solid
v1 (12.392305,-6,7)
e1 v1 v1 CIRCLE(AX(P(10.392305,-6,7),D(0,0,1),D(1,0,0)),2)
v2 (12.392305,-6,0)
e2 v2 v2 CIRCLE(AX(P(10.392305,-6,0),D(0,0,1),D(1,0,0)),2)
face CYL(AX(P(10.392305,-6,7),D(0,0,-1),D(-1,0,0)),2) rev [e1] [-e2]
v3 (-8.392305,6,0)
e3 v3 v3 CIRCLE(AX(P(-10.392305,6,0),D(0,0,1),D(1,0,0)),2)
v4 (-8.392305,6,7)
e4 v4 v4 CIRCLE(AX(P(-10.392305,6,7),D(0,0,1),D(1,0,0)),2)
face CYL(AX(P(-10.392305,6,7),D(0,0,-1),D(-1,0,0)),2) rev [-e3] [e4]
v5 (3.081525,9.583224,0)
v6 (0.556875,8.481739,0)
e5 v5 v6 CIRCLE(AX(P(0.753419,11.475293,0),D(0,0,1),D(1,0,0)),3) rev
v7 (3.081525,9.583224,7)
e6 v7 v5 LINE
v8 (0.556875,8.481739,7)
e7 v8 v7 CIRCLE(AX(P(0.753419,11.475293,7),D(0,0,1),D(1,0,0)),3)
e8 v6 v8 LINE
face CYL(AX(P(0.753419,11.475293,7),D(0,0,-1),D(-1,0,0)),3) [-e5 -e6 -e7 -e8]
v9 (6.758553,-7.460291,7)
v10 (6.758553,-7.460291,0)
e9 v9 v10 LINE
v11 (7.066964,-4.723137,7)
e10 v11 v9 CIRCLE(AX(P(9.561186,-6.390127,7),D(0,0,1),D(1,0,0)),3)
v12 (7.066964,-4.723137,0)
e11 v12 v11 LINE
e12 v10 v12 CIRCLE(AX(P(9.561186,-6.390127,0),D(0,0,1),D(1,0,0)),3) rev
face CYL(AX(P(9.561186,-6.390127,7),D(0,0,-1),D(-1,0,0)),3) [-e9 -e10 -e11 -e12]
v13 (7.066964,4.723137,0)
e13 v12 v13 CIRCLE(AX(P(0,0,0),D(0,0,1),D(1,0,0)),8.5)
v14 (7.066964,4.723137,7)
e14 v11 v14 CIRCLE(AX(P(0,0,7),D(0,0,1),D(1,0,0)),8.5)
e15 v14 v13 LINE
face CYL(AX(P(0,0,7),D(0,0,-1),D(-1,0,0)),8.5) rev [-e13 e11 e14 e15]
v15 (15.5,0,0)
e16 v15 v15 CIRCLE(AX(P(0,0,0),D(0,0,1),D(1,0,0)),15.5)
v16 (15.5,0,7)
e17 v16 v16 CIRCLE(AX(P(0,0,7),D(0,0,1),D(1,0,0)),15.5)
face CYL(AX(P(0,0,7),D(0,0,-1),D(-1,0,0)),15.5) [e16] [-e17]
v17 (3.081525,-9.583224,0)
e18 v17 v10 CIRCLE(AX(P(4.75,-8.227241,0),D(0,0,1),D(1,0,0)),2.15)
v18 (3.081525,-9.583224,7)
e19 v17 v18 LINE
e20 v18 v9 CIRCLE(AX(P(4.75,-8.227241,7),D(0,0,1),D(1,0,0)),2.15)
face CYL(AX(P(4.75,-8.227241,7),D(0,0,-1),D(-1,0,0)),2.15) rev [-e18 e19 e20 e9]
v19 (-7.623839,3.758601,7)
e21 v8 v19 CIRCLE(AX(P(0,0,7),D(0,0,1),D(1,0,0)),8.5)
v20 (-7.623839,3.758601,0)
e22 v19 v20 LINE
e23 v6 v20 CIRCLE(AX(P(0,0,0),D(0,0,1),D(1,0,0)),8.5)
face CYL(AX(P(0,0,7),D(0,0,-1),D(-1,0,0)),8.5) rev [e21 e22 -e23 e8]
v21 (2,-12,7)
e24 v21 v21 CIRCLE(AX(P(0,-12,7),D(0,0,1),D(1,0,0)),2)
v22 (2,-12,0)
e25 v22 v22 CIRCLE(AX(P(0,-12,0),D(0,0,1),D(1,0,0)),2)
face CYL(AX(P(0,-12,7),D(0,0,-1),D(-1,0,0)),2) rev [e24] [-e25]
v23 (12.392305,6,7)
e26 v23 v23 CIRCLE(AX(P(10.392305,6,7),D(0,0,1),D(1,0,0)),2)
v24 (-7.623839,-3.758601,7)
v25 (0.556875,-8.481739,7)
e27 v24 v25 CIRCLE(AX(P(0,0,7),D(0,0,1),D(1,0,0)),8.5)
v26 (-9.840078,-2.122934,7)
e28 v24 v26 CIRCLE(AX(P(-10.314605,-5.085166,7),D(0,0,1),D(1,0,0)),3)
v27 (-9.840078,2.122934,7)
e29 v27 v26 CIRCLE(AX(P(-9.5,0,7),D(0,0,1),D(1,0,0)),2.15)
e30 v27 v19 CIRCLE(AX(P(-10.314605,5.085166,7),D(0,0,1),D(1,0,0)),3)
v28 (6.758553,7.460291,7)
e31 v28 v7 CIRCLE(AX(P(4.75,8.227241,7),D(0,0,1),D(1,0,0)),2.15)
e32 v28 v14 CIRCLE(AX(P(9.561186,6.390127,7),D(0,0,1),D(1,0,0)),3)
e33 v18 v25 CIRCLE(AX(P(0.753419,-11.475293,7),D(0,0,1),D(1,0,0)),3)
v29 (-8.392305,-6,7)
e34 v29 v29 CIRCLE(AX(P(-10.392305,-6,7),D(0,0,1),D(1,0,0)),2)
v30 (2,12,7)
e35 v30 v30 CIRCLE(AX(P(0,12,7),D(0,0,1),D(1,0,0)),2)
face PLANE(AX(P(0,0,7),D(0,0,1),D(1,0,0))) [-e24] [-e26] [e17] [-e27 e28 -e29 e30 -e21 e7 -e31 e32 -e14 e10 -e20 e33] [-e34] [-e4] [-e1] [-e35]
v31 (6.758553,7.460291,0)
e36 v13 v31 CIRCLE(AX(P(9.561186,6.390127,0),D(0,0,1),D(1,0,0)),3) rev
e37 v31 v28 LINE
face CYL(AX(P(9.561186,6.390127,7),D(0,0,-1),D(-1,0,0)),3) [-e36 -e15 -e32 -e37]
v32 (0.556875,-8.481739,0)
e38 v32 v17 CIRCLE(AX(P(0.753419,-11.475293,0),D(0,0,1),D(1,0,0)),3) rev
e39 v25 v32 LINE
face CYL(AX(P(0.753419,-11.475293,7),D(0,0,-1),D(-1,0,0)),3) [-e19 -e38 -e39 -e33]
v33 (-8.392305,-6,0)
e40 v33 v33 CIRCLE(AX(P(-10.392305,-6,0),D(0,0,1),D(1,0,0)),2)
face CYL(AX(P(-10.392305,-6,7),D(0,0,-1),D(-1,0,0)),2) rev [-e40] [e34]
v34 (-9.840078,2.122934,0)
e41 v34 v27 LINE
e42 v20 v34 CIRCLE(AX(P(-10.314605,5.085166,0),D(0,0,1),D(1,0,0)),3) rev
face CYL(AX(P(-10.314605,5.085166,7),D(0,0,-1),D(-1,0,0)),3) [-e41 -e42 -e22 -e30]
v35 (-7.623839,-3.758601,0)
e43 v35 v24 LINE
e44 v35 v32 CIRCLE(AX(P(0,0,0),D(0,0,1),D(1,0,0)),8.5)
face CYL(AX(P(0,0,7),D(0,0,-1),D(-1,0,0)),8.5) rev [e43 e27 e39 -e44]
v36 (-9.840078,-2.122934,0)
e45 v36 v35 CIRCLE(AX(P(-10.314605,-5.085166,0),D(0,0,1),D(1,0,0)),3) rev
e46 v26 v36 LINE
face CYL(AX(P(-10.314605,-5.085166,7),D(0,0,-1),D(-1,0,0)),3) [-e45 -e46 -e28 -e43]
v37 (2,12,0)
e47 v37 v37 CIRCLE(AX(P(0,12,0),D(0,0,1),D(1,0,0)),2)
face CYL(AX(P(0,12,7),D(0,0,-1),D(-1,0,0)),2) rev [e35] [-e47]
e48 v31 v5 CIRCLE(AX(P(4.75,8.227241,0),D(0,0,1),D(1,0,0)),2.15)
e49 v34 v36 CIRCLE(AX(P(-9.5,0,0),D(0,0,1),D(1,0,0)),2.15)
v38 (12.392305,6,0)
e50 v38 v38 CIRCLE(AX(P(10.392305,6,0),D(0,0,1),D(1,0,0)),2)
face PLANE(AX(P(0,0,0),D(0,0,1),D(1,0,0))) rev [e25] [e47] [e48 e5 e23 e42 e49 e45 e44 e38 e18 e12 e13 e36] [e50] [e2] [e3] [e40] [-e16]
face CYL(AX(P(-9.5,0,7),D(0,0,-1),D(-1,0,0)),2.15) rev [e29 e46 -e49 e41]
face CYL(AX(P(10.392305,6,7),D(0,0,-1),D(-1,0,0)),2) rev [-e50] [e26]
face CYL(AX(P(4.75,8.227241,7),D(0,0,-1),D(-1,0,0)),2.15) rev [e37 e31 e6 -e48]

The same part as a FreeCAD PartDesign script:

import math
import FreeCAD as App
import Part
import Sketcher


def edges_at(feature, points):
    """Names of the edges that pass closest to the given points."""
    edges = feature.Shape.Edges
    near = lambda p: min(range(len(edges)), key=lambda i: edges[i].distToShape(Part.Vertex(*p))[0])
    return sorted({f"Edge{near(p) + 1}" for p in points})

doc = App.newDocument("Part")
params = doc.addObject("Spreadsheet::Sheet", "Params")
for row, (alias, value) in enumerate([
    ("sketch1_diameter", "31 mm"),
    ("sketch1_diameter2", "4 mm"),
    ("sketch1_radius", "8.5 mm"),
    ("sketch1_radius2", "2.15 mm"),
    ("pad1_length", "7 mm"),
    ("fillet_radius", "3 mm"),
], start=1):
    params.set(f"A{row}", alias)
    params.set(f"B{row}", "=" + value)
    params.setAlias(f"B{row}", alias)

body = doc.addObject("PartDesign::Body", "Body")

# Sketch on XY plane
sketch1 = body.newObject("Sketcher::SketchObject", "Sketch")
sketch1.AttachmentSupport = (doc.getObject("XY_Plane"), [""])
sketch1.MapMode = "FlatFace"
sketch1.addGeometry(Part.Circle(App.Vector(0, 0, 0), App.Vector(0, 0, 1), 15.5), False)
sketch1.addGeometry(Part.Circle(App.Vector(0, -12, 0), App.Vector(0, 0, 1), 2), False)
sketch1.addGeometry(Part.Circle(App.Vector(-10.392305, -6, 0), App.Vector(0, 0, 1), 2), False)
sketch1.addGeometry(Part.Circle(App.Vector(10.392305, -6, 0), App.Vector(0, 0, 1), 2), False)
sketch1.addGeometry(Part.Circle(App.Vector(-10.392305, 6, 0), App.Vector(0, 0, 1), 2), False)
sketch1.addGeometry(Part.ArcOfCircle(Part.Circle(App.Vector(0, 0, 0), App.Vector(0, 0, 1), 8.5), math.radians(72.15824), math.radians(167.84176)), False)
sketch1.addGeometry(Part.ArcOfCircle(Part.Circle(App.Vector(4.75, 8.227241, 0), App.Vector(0, 0, 1), 2.15), math.radians(0), math.radians(183.627714)), False)
sketch1.addGeometry(Part.ArcOfCircle(Part.Circle(App.Vector(4.75, 8.227241, 0), App.Vector(0, 0, 1), 2.15), math.radians(-63.627714), math.radians(0)), False)
sketch1.addGeometry(Part.ArcOfCircle(Part.Circle(App.Vector(0, 0, 0), App.Vector(0, 0, 1), 8.5), math.radians(0), math.radians(47.84176)), False)
sketch1.addGeometry(Part.ArcOfCircle(Part.Circle(App.Vector(0, 0, 0), App.Vector(0, 0, 1), 8.5), math.radians(-47.84176), math.radians(0)), False)
sketch1.addGeometry(Part.ArcOfCircle(Part.Circle(App.Vector(4.75, -8.227241, 0), App.Vector(0, 0, 1), 2.15), math.radians(0), math.radians(63.627714)), False)
sketch1.addGeometry(Part.ArcOfCircle(Part.Circle(App.Vector(4.75, -8.227241, 0), App.Vector(0, 0, 1), 2.15), math.radians(176.372286), math.radians(360)), False)
sketch1.addGeometry(Part.ArcOfCircle(Part.Circle(App.Vector(0, 0, 0), App.Vector(0, 0, 1), 8.5), math.radians(-167.84176), math.radians(-72.15824)), False)
sketch1.addGeometry(Part.ArcOfCircle(Part.Circle(App.Vector(-9.5, 0, 0), App.Vector(0, 0, 1), 2.15), math.radians(56.372286), math.radians(303.627714)), False)
sketch1.addGeometry(Part.Circle(App.Vector(0, 12, 0), App.Vector(0, 0, 1), 2), False)
sketch1.addGeometry(Part.Circle(App.Vector(10.392305, 6, 0), App.Vector(0, 0, 1), 2), False)
sketch1.addConstraint(Sketcher.Constraint("Coincident", 5, 1, 6, 2))
sketch1.addConstraint(Sketcher.Constraint("Tangent", 6, 1, 7, 2))
sketch1.addConstraint(Sketcher.Constraint("Coincident", 7, 1, 8, 2))
sketch1.addConstraint(Sketcher.Constraint("Tangent", 8, 1, 9, 2))
sketch1.addConstraint(Sketcher.Constraint("Coincident", 9, 1, 10, 2))
sketch1.addConstraint(Sketcher.Constraint("Tangent", 10, 1, 11, 2))
sketch1.addConstraint(Sketcher.Constraint("Coincident", 11, 1, 12, 2))
sketch1.addConstraint(Sketcher.Constraint("Coincident", 12, 1, 13, 2))
sketch1.addConstraint(Sketcher.Constraint("Coincident", 13, 1, 5, 2))
sketch1.addConstraint(Sketcher.Constraint("Coincident", 0, 3, -1, 1))
sketch1.addConstraint(Sketcher.Constraint("Coincident", 5, 3, -1, 1))
sketch1.addConstraint(Sketcher.Constraint("Coincident", 8, 3, -1, 1))
sketch1.addConstraint(Sketcher.Constraint("Coincident", 12, 3, -1, 1))
sketch1.addConstraint(Sketcher.Constraint("Equal", 1, 2))
sketch1.addConstraint(Sketcher.Constraint("Equal", 2, 3))
sketch1.addConstraint(Sketcher.Constraint("Equal", 3, 4))
sketch1.addConstraint(Sketcher.Constraint("Equal", 6, 7))
sketch1.addConstraint(Sketcher.Constraint("Equal", 5, 8))
sketch1.addConstraint(Sketcher.Constraint("Equal", 8, 9))
sketch1.addConstraint(Sketcher.Constraint("Equal", 7, 10))
sketch1.addConstraint(Sketcher.Constraint("Equal", 10, 11))
sketch1.addConstraint(Sketcher.Constraint("Equal", 9, 12))
sketch1.addConstraint(Sketcher.Constraint("Equal", 11, 13))
sketch1.addConstraint(Sketcher.Constraint("Equal", 4, 14))
sketch1.addConstraint(Sketcher.Constraint("Equal", 14, 15))
sketch1.addConstraint(Sketcher.Constraint("Symmetric", 3, 3, 4, 3, -1, 1))
sketch1.addConstraint(Sketcher.Constraint("Symmetric", 1, 3, 14, 3, -1, 1))
sketch1.addConstraint(Sketcher.Constraint("Symmetric", 2, 3, 15, 3, -1, 1))
sketch1.addConstraint(Sketcher.Constraint("Symmetric", 2, 3, 3, 3, -2))
sketch1.addConstraint(Sketcher.Constraint("Symmetric", 6, 3, 10, 3, -1))
sketch1.addConstraint(Sketcher.Constraint("PointOnObject", 1, 3, -2))
sketch1.addConstraint(Sketcher.Constraint("PointOnObject", 13, 3, -1))
sketch1.addConstraint(Sketcher.Constraint("PointOnObject", 8, 1, -1))
sketch1.addConstraint(Sketcher.Constraint("Horizontal", 7, 3, 6, 1))
sketch1.addConstraint(Sketcher.Constraint("Horizontal", 11, 3, 10, 1))
sketch1.addConstraint(Sketcher.Constraint("Diameter", 0, 31.0))
sketch1.addConstraint(Sketcher.Constraint("Diameter", 1, 4.0))
sketch1.addConstraint(Sketcher.Constraint("Radius", 5, 8.5))
sketch1.addConstraint(Sketcher.Constraint("Radius", 6, 2.15))
sketch1.addConstraint(Sketcher.Constraint("DistanceY", 1, 3, -1, 1, 12.0))
sketch1.addConstraint(Sketcher.Constraint("DistanceY", 2, 3, -1, 1, 6.0))
sketch1.addConstraint(Sketcher.Constraint("DistanceX", 13, 3, -1, 1, 9.5))
sketch1.addConstraint(Sketcher.Constraint("DistanceX", -1, 1, 6, 1, 6.9))
sketch1.addConstraint(Sketcher.Constraint("DistanceY", -1, 1, 7, 1, 6.300999))
sketch1.addConstraint(Sketcher.Constraint("DistanceX", 2, 3, 3, 3, 20.78461))
sketch1.setExpression("Constraints[35]", "Params.sketch1_diameter")
sketch1.setExpression("Constraints[36]", "Params.sketch1_diameter2")
sketch1.setExpression("Constraints[37]", "Params.sketch1_radius")
sketch1.setExpression("Constraints[38]", "Params.sketch1_radius2")
pad1 = body.newObject("PartDesign::Pad", "Pad")
pad1.Profile = sketch1
pad1.setExpression("Length", "Params.pad1_length")
doc.recompute()

fillet = body.newObject("PartDesign::Fillet", "Fillet")
fillet.Base = (pad1, edges_at(pad1, [
    (-8.309, 1.79, 3.5),
    (-8.309, -1.79, 3.5),
    (2.604, -8.091, 3.5),
    (5.705, -6.301, 3.5),
    (5.705, 6.301, 3.5),
    (2.604, 8.091, 3.5),
]))
fillet.setExpression("Radius", "Params.fillet_radius")

doc.recompute()
